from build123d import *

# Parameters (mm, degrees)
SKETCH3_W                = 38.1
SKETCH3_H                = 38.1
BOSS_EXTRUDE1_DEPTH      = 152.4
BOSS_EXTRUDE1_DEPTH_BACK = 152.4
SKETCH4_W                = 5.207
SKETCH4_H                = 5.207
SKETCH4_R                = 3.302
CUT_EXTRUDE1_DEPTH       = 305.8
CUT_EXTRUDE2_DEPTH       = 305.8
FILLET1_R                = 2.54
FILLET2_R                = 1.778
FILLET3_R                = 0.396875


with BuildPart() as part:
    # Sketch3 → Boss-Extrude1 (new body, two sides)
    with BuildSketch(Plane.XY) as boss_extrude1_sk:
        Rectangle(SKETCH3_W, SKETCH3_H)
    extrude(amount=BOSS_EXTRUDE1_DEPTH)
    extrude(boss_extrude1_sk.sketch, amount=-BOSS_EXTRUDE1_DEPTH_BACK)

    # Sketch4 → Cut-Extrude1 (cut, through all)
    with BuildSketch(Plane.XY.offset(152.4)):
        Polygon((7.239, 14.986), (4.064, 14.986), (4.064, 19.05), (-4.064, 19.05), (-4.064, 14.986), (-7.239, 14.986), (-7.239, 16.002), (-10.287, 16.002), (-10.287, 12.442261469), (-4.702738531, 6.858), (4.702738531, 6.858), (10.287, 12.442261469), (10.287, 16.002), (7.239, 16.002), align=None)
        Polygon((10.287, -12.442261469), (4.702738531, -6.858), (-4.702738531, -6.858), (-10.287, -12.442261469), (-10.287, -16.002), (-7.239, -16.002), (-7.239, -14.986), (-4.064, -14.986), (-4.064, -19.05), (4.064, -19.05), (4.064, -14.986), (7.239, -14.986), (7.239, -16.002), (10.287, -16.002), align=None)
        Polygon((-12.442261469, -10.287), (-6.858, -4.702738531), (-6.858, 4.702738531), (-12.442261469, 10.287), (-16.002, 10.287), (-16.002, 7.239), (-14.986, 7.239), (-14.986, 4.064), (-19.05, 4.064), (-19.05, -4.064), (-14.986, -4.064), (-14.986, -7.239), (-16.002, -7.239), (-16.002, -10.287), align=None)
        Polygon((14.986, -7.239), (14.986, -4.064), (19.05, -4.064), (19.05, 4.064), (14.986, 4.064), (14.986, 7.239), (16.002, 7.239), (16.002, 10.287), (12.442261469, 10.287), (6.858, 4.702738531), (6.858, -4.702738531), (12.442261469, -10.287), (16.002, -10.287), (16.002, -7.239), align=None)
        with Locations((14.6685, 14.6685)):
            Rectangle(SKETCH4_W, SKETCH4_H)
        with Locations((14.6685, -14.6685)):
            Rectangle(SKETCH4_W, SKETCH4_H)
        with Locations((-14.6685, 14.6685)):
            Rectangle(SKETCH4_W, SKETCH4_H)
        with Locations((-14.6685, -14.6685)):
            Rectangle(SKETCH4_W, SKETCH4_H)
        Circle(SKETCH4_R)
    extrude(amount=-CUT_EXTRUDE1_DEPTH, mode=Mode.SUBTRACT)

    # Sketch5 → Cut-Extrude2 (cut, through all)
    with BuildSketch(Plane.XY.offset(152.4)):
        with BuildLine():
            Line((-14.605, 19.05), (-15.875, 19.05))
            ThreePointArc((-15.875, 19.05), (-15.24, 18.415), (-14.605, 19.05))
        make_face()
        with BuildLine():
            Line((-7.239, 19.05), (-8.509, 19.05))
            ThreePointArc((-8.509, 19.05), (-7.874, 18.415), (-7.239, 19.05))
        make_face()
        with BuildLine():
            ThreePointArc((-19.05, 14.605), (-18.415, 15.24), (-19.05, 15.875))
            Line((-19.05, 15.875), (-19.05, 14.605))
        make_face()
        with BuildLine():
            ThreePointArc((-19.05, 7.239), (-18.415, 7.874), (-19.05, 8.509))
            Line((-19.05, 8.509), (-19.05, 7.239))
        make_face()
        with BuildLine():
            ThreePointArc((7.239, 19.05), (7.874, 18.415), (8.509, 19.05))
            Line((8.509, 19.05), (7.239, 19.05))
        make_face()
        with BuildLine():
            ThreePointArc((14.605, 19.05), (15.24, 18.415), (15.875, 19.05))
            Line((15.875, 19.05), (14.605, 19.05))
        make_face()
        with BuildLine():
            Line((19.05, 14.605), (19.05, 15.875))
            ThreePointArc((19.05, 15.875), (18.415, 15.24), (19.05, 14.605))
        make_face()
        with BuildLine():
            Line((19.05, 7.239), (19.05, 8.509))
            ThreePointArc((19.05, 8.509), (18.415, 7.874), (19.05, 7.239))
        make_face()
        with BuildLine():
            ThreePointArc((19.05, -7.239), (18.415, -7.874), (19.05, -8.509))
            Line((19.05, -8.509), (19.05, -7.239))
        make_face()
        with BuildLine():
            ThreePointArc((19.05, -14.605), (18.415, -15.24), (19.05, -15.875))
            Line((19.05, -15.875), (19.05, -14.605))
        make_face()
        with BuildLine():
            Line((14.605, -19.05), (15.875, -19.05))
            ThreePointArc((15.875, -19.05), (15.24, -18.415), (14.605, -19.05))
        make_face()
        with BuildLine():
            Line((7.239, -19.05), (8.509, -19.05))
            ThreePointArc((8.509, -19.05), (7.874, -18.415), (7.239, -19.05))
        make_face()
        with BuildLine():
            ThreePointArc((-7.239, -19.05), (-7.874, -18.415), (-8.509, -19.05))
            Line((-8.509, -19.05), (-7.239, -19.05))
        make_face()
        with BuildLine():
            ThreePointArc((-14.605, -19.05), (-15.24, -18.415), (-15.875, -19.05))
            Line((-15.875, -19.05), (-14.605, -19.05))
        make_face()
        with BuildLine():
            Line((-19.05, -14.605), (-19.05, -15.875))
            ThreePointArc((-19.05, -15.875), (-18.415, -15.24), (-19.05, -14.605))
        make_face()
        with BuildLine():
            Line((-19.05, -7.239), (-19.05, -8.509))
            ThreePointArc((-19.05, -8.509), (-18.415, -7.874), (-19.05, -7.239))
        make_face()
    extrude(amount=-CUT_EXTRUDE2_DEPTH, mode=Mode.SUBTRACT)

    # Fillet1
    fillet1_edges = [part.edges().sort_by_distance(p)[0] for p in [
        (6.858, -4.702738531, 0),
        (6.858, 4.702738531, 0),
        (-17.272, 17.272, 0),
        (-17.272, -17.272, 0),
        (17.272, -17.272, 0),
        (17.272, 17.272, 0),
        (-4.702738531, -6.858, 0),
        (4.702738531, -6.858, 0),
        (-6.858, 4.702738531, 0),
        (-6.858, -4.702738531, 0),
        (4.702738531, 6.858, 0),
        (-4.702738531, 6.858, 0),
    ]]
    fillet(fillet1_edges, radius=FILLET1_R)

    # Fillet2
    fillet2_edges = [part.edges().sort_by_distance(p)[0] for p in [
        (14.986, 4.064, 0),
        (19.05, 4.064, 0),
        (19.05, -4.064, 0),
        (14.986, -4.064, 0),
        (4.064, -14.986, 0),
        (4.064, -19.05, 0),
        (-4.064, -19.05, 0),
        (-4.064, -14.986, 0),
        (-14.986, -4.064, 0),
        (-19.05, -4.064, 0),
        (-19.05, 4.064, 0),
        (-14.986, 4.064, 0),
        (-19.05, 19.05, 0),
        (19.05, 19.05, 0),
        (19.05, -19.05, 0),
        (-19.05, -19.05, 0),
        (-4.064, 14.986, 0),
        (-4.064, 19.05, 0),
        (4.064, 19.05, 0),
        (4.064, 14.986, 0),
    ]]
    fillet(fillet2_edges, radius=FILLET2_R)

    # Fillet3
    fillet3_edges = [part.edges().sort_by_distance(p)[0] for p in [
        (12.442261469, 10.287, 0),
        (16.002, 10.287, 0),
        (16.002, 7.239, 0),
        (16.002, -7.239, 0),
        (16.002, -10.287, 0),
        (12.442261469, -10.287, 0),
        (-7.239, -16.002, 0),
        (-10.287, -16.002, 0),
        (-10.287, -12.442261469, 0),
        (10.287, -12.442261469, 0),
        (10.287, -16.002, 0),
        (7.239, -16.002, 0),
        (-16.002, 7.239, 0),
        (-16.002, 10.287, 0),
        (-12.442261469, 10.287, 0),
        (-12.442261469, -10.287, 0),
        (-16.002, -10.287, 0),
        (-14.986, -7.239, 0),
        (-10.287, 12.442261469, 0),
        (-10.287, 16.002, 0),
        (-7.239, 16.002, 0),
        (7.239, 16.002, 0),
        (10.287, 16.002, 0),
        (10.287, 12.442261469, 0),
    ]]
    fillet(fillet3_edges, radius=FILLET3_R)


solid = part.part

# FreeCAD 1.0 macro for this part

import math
import FreeCAD as App
import Part
import Sketcher

V = App.Vector
Q = App.Units.Quantity


def edges_at(feature, points):
    """Names of the edges that pass closest to the given points."""
    edges = feature.Shape.Edges
    near = lambda p: min(range(len(edges)), key=lambda i: edges[i].distToShape(Part.Vertex(*p))[0])
    return sorted({f"Edge{near(p) + 1}" for p in points})

doc = App.newDocument("Part")
body = doc.addObject("PartDesign::Body", "Body")

# Sketch on XY plane
sketch1 = body.newObject("Sketcher::SketchObject", "Sketch")
sketch1.AttachmentSupport = (doc.getObject("XY_Plane"), [""])
sketch1.MapMode = "FlatFace"
sketch1.addGeometry(Part.LineSegment(V(-19, 19, 0), V(-19, -19, 0)), False)
sketch1.addGeometry(Part.LineSegment(V(-19, -19, 0), V(19, -19, 0)), False)
sketch1.addGeometry(Part.LineSegment(V(19, -19, 0), V(19, 19, 0)), False)
sketch1.addGeometry(Part.LineSegment(V(19, 19, 0), V(-19, 19, 0)), False)
sketch1.addConstraint(Sketcher.Constraint("Coincident", 0, 2, 1, 1))
sketch1.addConstraint(Sketcher.Constraint("Coincident", 1, 2, 2, 1))
sketch1.addConstraint(Sketcher.Constraint("Coincident", 2, 2, 3, 1))
sketch1.addConstraint(Sketcher.Constraint("Coincident", 3, 2, 0, 1))
sketch1.addConstraint(Sketcher.Constraint("Vertical", 0))
sketch1.addConstraint(Sketcher.Constraint("Horizontal", 1))
sketch1.addConstraint(Sketcher.Constraint("Vertical", 2))
sketch1.addConstraint(Sketcher.Constraint("Horizontal", 3))
sketch1.addConstraint(Sketcher.Constraint("Symmetric", 0, 2, 2, 2, -1, 1))
sketch1.addConstraint(Sketcher.Constraint("Equal", 3, 0))
sketch1.addConstraint(Sketcher.Constraint("DistanceX", 1, 1, 1, 2, Q("1.5 in")))
pad1 = body.newObject("PartDesign::Pad", "Pad")
pad1.Profile = sketch1
pad1.Type = "TwoLengths"
pad1.Length = Q("6 in")
pad1.Length2 = Q("6 in")

# Sketch on XY plane
sketch2 = body.newObject("Sketcher::SketchObject", "Sketch001")
sketch2.AttachmentSupport = (doc.getObject("XY_Plane"), [""])
sketch2.MapMode = "FlatFace"
sketch2.AttachmentOffset = App.Placement(V(0, 0, 6 * 25.4), App.Rotation())
sketch2.addGeometry(Part.LineSegment(V(7.2, 15, 0), V(4.1, 15, 0)), False)
sketch2.addGeometry(Part.LineSegment(V(4.1, 15, 0), V(4.1, 19.1, 0)), False)
sketch2.addGeometry(Part.LineSegment(V(4.1, 19.1, 0), V(-4.1, 19.1, 0)), False)
sketch2.addGeometry(Part.LineSegment(V(-4.1, 19.1, 0), V(-4.1, 15, 0)), False)
sketch2.addGeometry(Part.LineSegment(V(-4.1, 15, 0), V(-7.2, 15, 0)), False)
sketch2.addGeometry(Part.LineSegment(V(-7.2, 15, 0), V(-7.2, 16, 0)), False)
sketch2.addGeometry(Part.LineSegment(V(-7.2, 16, 0), V(-10.3, 16, 0)), False)
sketch2.addGeometry(Part.LineSegment(V(-10.3, 16, 0), V(-10.3, 12.4, 0)), False)
sketch2.addGeometry(Part.LineSegment(V(-10.3, 12.4, 0), V(-4.7, 6.9, 0)), False)
sketch2.addGeometry(Part.LineSegment(V(-4.7, 6.9, 0), V(4.7, 6.9, 0)), False)
sketch2.addGeometry(Part.LineSegment(V(4.7, 6.9, 0), V(10.3, 12.4, 0)), False)
sketch2.addGeometry(Part.LineSegment(V(10.3, 12.4, 0), V(10.3, 16, 0)), False)
sketch2.addGeometry(Part.LineSegment(V(10.3, 16, 0), V(7.2, 16, 0)), False)
sketch2.addGeometry(Part.LineSegment(V(7.2, 16, 0), V(7.2, 15, 0)), False)
sketch2.addGeometry(Part.LineSegment(V(10.3, -12.4, 0), V(4.7, -6.9, 0)), False)
sketch2.addGeometry(Part.LineSegment(V(4.7, -6.9, 0), V(-4.7, -6.9, 0)), False)
sketch2.addGeometry(Part.LineSegment(V(-4.7, -6.9, 0), V(-10.3, -12.4, 0)), False)
sketch2.addGeometry(Part.LineSegment(V(-10.3, -12.4, 0), V(-10.3, -16, 0)), False)
sketch2.addGeometry(Part.LineSegment(V(-10.3, -16, 0), V(-7.2, -16, 0)), False)
sketch2.addGeometry(Part.LineSegment(V(-7.2, -16, 0), V(-7.2, -15, 0)), False)
sketch2.addGeometry(Part.LineSegment(V(-7.2, -15, 0), V(-4.1, -15, 0)), False)
sketch2.addGeometry(Part.LineSegment(V(-4.1, -15, 0), V(-4.1, -19.1, 0)), False)
sketch2.addGeometry(Part.LineSegment(V(-4.1, -19.1, 0), V(4.1, -19.1, 0)), False)
sketch2.addGeometry(Part.LineSegment(V(4.1, -19.1, 0), V(4.1, -15, 0)), False)
sketch2.addGeometry(Part.LineSegment(V(4.1, -15, 0), V(7.2, -15, 0)), False)
sketch2.addGeometry(Part.LineSegment(V(7.2, -15, 0), V(7.2, -16, 0)), False)
sketch2.addGeometry(Part.LineSegment(V(7.2, -16, 0), V(10.3, -16, 0)), False)
sketch2.addGeometry(Part.LineSegment(V(10.3, -16, 0), V(10.3, -12.4, 0)), False)
sketch2.addGeometry(Part.LineSegment(V(-12.4, -10.3, 0), V(-6.9, -4.7, 0)), False)
sketch2.addGeometry(Part.LineSegment(V(-6.9, -4.7, 0), V(-6.9, 4.7, 0)), False)
sketch2.addGeometry(Part.LineSegment(V(-6.9, 4.7, 0), V(-12.4, 10.3, 0)), False)
sketch2.addGeometry(Part.LineSegment(V(-12.4, 10.3, 0), V(-16, 10.3, 0)), False)
sketch2.addGeometry(Part.LineSegment(V(-16, 10.3, 0), V(-16, 7.2, 0)), False)
sketch2.addGeometry(Part.LineSegment(V(-16, 7.2, 0), V(-15, 7.2, 0)), False)
sketch2.addGeometry(Part.LineSegment(V(-15, 7.2, 0), V(-15, 4.1, 0)), False)
sketch2.addGeometry(Part.LineSegment(V(-15, 4.1, 0), V(-19.1, 4.1, 0)), False)
sketch2.addGeometry(Part.LineSegment(V(-19.1, 4.1, 0), V(-19.1, -4.1, 0)), False)
sketch2.addGeometry(Part.LineSegment(V(-19.1, -4.1, 0), V(-15, -4.1, 0)), False)
sketch2.addGeometry(Part.LineSegment(V(-15, -4.1, 0), V(-15, -7.2, 0)), False)
sketch2.addGeometry(Part.LineSegment(V(-15, -7.2, 0), V(-16, -7.2, 0)), False)
sketch2.addGeometry(Part.LineSegment(V(-16, -7.2, 0), V(-16, -10.3, 0)), False)
sketch2.addGeometry(Part.LineSegment(V(-16, -10.3, 0), V(-12.4, -10.3, 0)), False)
sketch2.addGeometry(Part.LineSegment(V(15, -7.2, 0), V(15, -4.1, 0)), False)
sketch2.addGeometry(Part.LineSegment(V(15, -4.1, 0), V(19.1, -4.1, 0)), False)
sketch2.addGeometry(Part.LineSegment(V(19.1, -4.1, 0), V(19.1, 4.1, 0)), False)
sketch2.addGeometry(Part.LineSegment(V(19.1, 4.1, 0), V(15, 4.1, 0)), False)
sketch2.addGeometry(Part.LineSegment(V(15, 4.1, 0), V(15, 7.2, 0)), False)
sketch2.addGeometry(Part.LineSegment(V(15, 7.2, 0), V(16, 7.2, 0)), False)
sketch2.addGeometry(Part.LineSegment(V(16, 7.2, 0), V(16, 10.3, 0)), False)
sketch2.addGeometry(Part.LineSegment(V(16, 10.3, 0), V(12.4, 10.3, 0)), False)
sketch2.addGeometry(Part.LineSegment(V(12.4, 10.3, 0), V(6.9, 4.7, 0)), False)
sketch2.addGeometry(Part.LineSegment(V(6.9, 4.7, 0), V(6.9, -4.7, 0)), False)
sketch2.addGeometry(Part.LineSegment(V(6.9, -4.7, 0), V(12.4, -10.3, 0)), False)
sketch2.addGeometry(Part.LineSegment(V(12.4, -10.3, 0), V(16, -10.3, 0)), False)
sketch2.addGeometry(Part.LineSegment(V(16, -10.3, 0), V(16, -7.2, 0)), False)
sketch2.addGeometry(Part.LineSegment(V(16, -7.2, 0), V(15, -7.2, 0)), False)
sketch2.addGeometry(Part.LineSegment(V(12.1, 17.3, 0), V(12.1, 12.1, 0)), False)
sketch2.addGeometry(Part.LineSegment(V(12.1, 12.1, 0), V(17.3, 12.1, 0)), False)
sketch2.addGeometry(Part.LineSegment(V(17.3, 12.1, 0), V(17.3, 17.3, 0)), False)
sketch2.addGeometry(Part.LineSegment(V(17.3, 17.3, 0), V(12.1, 17.3, 0)), False)
sketch2.addGeometry(Part.LineSegment(V(12.1, -12.1, 0), V(12.1, -17.3, 0)), False)
sketch2.addGeometry(Part.LineSegment(V(12.1, -17.3, 0), V(17.3, -17.3, 0)), False)
sketch2.addGeometry(Part.LineSegment(V(17.3, -17.3, 0), V(17.3, -12.1, 0)), False)
sketch2.addGeometry(Part.LineSegment(V(17.3, -12.1, 0), V(12.1, -12.1, 0)), False)
sketch2.addGeometry(Part.LineSegment(V(-17.3, 17.3, 0), V(-17.3, 12.1, 0)), False)
sketch2.addGeometry(Part.LineSegment(V(-17.3, 12.1, 0), V(-12.1, 12.1, 0)), False)
sketch2.addGeometry(Part.LineSegment(V(-12.1, 12.1, 0), V(-12.1, 17.3, 0)), False)
sketch2.addGeometry(Part.LineSegment(V(-12.1, 17.3, 0), V(-17.3, 17.3, 0)), False)
sketch2.addGeometry(Part.LineSegment(V(-17.3, -12.1, 0), V(-17.3, -17.3, 0)), False)
sketch2.addGeometry(Part.LineSegment(V(-17.3, -17.3, 0), V(-12.1, -17.3, 0)), False)
sketch2.addGeometry(Part.LineSegment(V(-12.1, -17.3, 0), V(-12.1, -12.1, 0)), False)
sketch2.addGeometry(Part.LineSegment(V(-12.1, -12.1, 0), V(-17.3, -12.1, 0)), False)
sketch2.addGeometry(Part.Circle(V(0, 0, 0), V(0, 0, 1), 3.3), False)
sketch2.addConstraint(Sketcher.Constraint("Coincident", 0, 2, 1, 1))
sketch2.addConstraint(Sketcher.Constraint("Coincident", 1, 2, 2, 1))
sketch2.addConstraint(Sketcher.Constraint("Coincident", 2, 2, 3, 1))
sketch2.addConstraint(Sketcher.Constraint("Coincident", 3, 2, 4, 1))
sketch2.addConstraint(Sketcher.Constraint("Coincident", 4, 2, 5, 1))
sketch2.addConstraint(Sketcher.Constraint("Coincident", 5, 2, 6, 1))
sketch2.addConstraint(Sketcher.Constraint("Coincident", 6, 2, 7, 1))
sketch2.addConstraint(Sketcher.Constraint("Coincident", 7, 2, 8, 1))
sketch2.addConstraint(Sketcher.Constraint("Coincident", 8, 2, 9, 1))
sketch2.addConstraint(Sketcher.Constraint("Coincident", 9, 2, 10, 1))
sketch2.addConstraint(Sketcher.Constraint("Coincident", 10, 2, 11, 1))
sketch2.addConstraint(Sketcher.Constraint("Coincident", 11, 2, 12, 1))
sketch2.addConstraint(Sketcher.Constraint("Coincident", 12, 2, 13, 1))
sketch2.addConstraint(Sketcher.Constraint("Coincident", 13, 2, 0, 1))
sketch2.addConstraint(Sketcher.Constraint("Coincident", 14, 2, 15, 1))
sketch2.addConstraint(Sketcher.Constraint("Coincident", 15, 2, 16, 1))
sketch2.addConstraint(Sketcher.Constraint("Coincident", 16, 2, 17, 1))
sketch2.addConstraint(Sketcher.Constraint("Coincident", 17, 2, 18, 1))
sketch2.addConstraint(Sketcher.Constraint("Coincident", 18, 2, 19, 1))
sketch2.addConstraint(Sketcher.Constraint("Coincident", 19, 2, 20, 1))
sketch2.addConstraint(Sketcher.Constraint("Coincident", 20, 2, 21, 1))
sketch2.addConstraint(Sketcher.Constraint("Coincident", 21, 2, 22, 1))
sketch2.addConstraint(Sketcher.Constraint("Coincident", 22, 2, 23, 1))
sketch2.addConstraint(Sketcher.Constraint("Coincident", 23, 2, 24, 1))
sketch2.addConstraint(Sketcher.Constraint("Coincident", 24, 2, 25, 1))
sketch2.addConstraint(Sketcher.Constraint("Coincident", 25, 2, 26, 1))
sketch2.addConstraint(Sketcher.Constraint("Coincident", 26, 2, 27, 1))
sketch2.addConstraint(Sketcher.Constraint("Coincident", 27, 2, 14, 1))
sketch2.addConstraint(Sketcher.Constraint("Coincident", 28, 2, 29, 1))
sketch2.addConstraint(Sketcher.Constraint("Coincident", 29, 2, 30, 1))
sketch2.addConstraint(Sketcher.Constraint("Coincident", 30, 2, 31, 1))
sketch2.addConstraint(Sketcher.Constraint("Coincident", 31, 2, 32, 1))
sketch2.addConstraint(Sketcher.Constraint("Coincident", 32, 2, 33, 1))
sketch2.addConstraint(Sketcher.Constraint("Coincident", 33, 2, 34, 1))
sketch2.addConstraint(Sketcher.Constraint("Coincident", 34, 2, 35, 1))
sketch2.addConstraint(Sketcher.Constraint("Coincident", 35, 2, 36, 1))
sketch2.addConstraint(Sketcher.Constraint("Coincident", 36, 2, 37, 1))
sketch2.addConstraint(Sketcher.Constraint("Coincident", 37, 2, 38, 1))
sketch2.addConstraint(Sketcher.Constraint("Coincident", 38, 2, 39, 1))
sketch2.addConstraint(Sketcher.Constraint("Coincident", 39, 2, 40, 1))
sketch2.addConstraint(Sketcher.Constraint("Coincident", 40, 2, 41, 1))
sketch2.addConstraint(Sketcher.Constraint("Coincident", 41, 2, 28, 1))
sketch2.addConstraint(Sketcher.Constraint("Coincident", 42, 2, 43, 1))
sketch2.addConstraint(Sketcher.Constraint("Coincident", 43, 2, 44, 1))
sketch2.addConstraint(Sketcher.Constraint("Coincident", 44, 2, 45, 1))
sketch2.addConstraint(Sketcher.Constraint("Coincident", 45, 2, 46, 1))
sketch2.addConstraint(Sketcher.Constraint("Coincident", 46, 2, 47, 1))
sketch2.addConstraint(Sketcher.Constraint("Coincident", 47, 2, 48, 1))
sketch2.addConstraint(Sketcher.Constraint("Coincident", 48, 2, 49, 1))
sketch2.addConstraint(Sketcher.Constraint("Coincident", 49, 2, 50, 1))
sketch2.addConstraint(Sketcher.Constraint("Coincident", 50, 2, 51, 1))
sketch2.addConstraint(Sketcher.Constraint("Coincident", 51, 2, 52, 1))
sketch2.addConstraint(Sketcher.Constraint("Coincident", 52, 2, 53, 1))
sketch2.addConstraint(Sketcher.Constraint("Coincident", 53, 2, 54, 1))
sketch2.addConstraint(Sketcher.Constraint("Coincident", 54, 2, 55, 1))
sketch2.addConstraint(Sketcher.Constraint("Coincident", 55, 2, 42, 1))
sketch2.addConstraint(Sketcher.Constraint("Coincident", 56, 2, 57, 1))
sketch2.addConstraint(Sketcher.Constraint("Coincident", 57, 2, 58, 1))
sketch2.addConstraint(Sketcher.Constraint("Coincident", 58, 2, 59, 1))
sketch2.addConstraint(Sketcher.Constraint("Coincident", 59, 2, 56, 1))
sketch2.addConstraint(Sketcher.Constraint("Coincident", 60, 2, 61, 1))
sketch2.addConstraint(Sketcher.Constraint("Coincident", 61, 2, 62, 1))
sketch2.addConstraint(Sketcher.Constraint("Coincident", 62, 2, 63, 1))
sketch2.addConstraint(Sketcher.Constraint("Coincident", 63, 2, 60, 1))
sketch2.addConstraint(Sketcher.Constraint("Coincident", 64, 2, 65, 1))
sketch2.addConstraint(Sketcher.Constraint("Coincident", 65, 2, 66, 1))
sketch2.addConstraint(Sketcher.Constraint("Coincident", 66, 2, 67, 1))
sketch2.addConstraint(Sketcher.Constraint("Coincident", 67, 2, 64, 1))
sketch2.addConstraint(Sketcher.Constraint("Coincident", 68, 2, 69, 1))
sketch2.addConstraint(Sketcher.Constraint("Coincident", 69, 2, 70, 1))
sketch2.addConstraint(Sketcher.Constraint("Coincident", 70, 2, 71, 1))
sketch2.addConstraint(Sketcher.Constraint("Coincident", 71, 2, 68, 1))
sketch2.addConstraint(Sketcher.Constraint("Horizontal", 0))
sketch2.addConstraint(Sketcher.Constraint("Vertical", 1))
sketch2.addConstraint(Sketcher.Constraint("Horizontal", 2))
sketch2.addConstraint(Sketcher.Constraint("Vertical", 3))
sketch2.addConstraint(Sketcher.Constraint("Horizontal", 4))
sketch2.addConstraint(Sketcher.Constraint("Vertical", 5))
sketch2.addConstraint(Sketcher.Constraint("Horizontal", 6))
sketch2.addConstraint(Sketcher.Constraint("Vertical", 7))
sketch2.addConstraint(Sketcher.Constraint("Horizontal", 9))
sketch2.addConstraint(Sketcher.Constraint("Vertical", 11))
sketch2.addConstraint(Sketcher.Constraint("Horizontal", 12))
sketch2.addConstraint(Sketcher.Constraint("Vertical", 13))
sketch2.addConstraint(Sketcher.Constraint("Horizontal", 15))
sketch2.addConstraint(Sketcher.Constraint("Vertical", 17))
sketch2.addConstraint(Sketcher.Constraint("Horizontal", 18))
sketch2.addConstraint(Sketcher.Constraint("Vertical", 19))
sketch2.addConstraint(Sketcher.Constraint("Horizontal", 20))
sketch2.addConstraint(Sketcher.Constraint("Vertical", 21))
sketch2.addConstraint(Sketcher.Constraint("Horizontal", 22))
sketch2.addConstraint(Sketcher.Constraint("Vertical", 23))
sketch2.addConstraint(Sketcher.Constraint("Horizontal", 24))
sketch2.addConstraint(Sketcher.Constraint("Vertical", 25))
sketch2.addConstraint(Sketcher.Constraint("Horizontal", 26))
sketch2.addConstraint(Sketcher.Constraint("Vertical", 27))
sketch2.addConstraint(Sketcher.Constraint("Vertical", 29))
sketch2.addConstraint(Sketcher.Constraint("Horizontal", 31))
sketch2.addConstraint(Sketcher.Constraint("Vertical", 32))
sketch2.addConstraint(Sketcher.Constraint("Horizontal", 33))
sketch2.addConstraint(Sketcher.Constraint("Vertical", 34))
sketch2.addConstraint(Sketcher.Constraint("Horizontal", 35))
sketch2.addConstraint(Sketcher.Constraint("Vertical", 36))
sketch2.addConstraint(Sketcher.Constraint("Horizontal", 37))
sketch2.addConstraint(Sketcher.Constraint("Vertical", 38))
sketch2.addConstraint(Sketcher.Constraint("Horizontal", 39))
sketch2.addConstraint(Sketcher.Constraint("Vertical", 40))
sketch2.addConstraint(Sketcher.Constraint("Horizontal", 41))
sketch2.addConstraint(Sketcher.Constraint("Vertical", 42))
sketch2.addConstraint(Sketcher.Constraint("Horizontal", 43))
sketch2.addConstraint(Sketcher.Constraint("Vertical", 44))
sketch2.addConstraint(Sketcher.Constraint("Horizontal", 45))
sketch2.addConstraint(Sketcher.Constraint("Vertical", 46))
sketch2.addConstraint(Sketcher.Constraint("Horizontal", 47))
sketch2.addConstraint(Sketcher.Constraint("Vertical", 48))
sketch2.addConstraint(Sketcher.Constraint("Horizontal", 49))
sketch2.addConstraint(Sketcher.Constraint("Vertical", 51))
sketch2.addConstraint(Sketcher.Constraint("Horizontal", 53))
sketch2.addConstraint(Sketcher.Constraint("Vertical", 54))
sketch2.addConstraint(Sketcher.Constraint("Horizontal", 55))
sketch2.addConstraint(Sketcher.Constraint("Vertical", 56))
sketch2.addConstraint(Sketcher.Constraint("Horizontal", 57))
sketch2.addConstraint(Sketcher.Constraint("Vertical", 58))
sketch2.addConstraint(Sketcher.Constraint("Horizontal", 59))
sketch2.addConstraint(Sketcher.Constraint("Vertical", 60))
sketch2.addConstraint(Sketcher.Constraint("Horizontal", 61))
sketch2.addConstraint(Sketcher.Constraint("Vertical", 62))
sketch2.addConstraint(Sketcher.Constraint("Horizontal", 63))
sketch2.addConstraint(Sketcher.Constraint("Vertical", 64))
sketch2.addConstraint(Sketcher.Constraint("Horizontal", 65))
sketch2.addConstraint(Sketcher.Constraint("Vertical", 66))
sketch2.addConstraint(Sketcher.Constraint("Horizontal", 67))
sketch2.addConstraint(Sketcher.Constraint("Vertical", 68))
sketch2.addConstraint(Sketcher.Constraint("Horizontal", 69))
sketch2.addConstraint(Sketcher.Constraint("Vertical", 70))
sketch2.addConstraint(Sketcher.Constraint("Horizontal", 71))
sketch2.addConstraint(Sketcher.Constraint("Coincident", 72, 3, -1, 1))
sketch2.addConstraint(Sketcher.Constraint("Symmetric", 8, 2, 14, 2, -1, 1))
sketch2.addConstraint(Sketcher.Constraint("Symmetric", 10, 2, 16, 2, -1, 1))
sketch2.addConstraint(Sketcher.Constraint("Symmetric", 12, 2, 18, 2, -1, 1))
sketch2.addConstraint(Sketcher.Constraint("Symmetric", 0, 2, 20, 2, -1, 1))
sketch2.addConstraint(Sketcher.Constraint("Symmetric", 2, 2, 22, 2, -1, 1))
sketch2.addConstraint(Sketcher.Constraint("Symmetric", 4, 2, 24, 2, -1, 1))
sketch2.addConstraint(Sketcher.Constraint("Symmetric", 6, 2, 26, 2, -1, 1))
sketch2.addConstraint(Sketcher.Constraint("Symmetric", 34, 2, 42, 2, -1, 1))
sketch2.addConstraint(Sketcher.Constraint("Symmetric", 36, 2, 44, 2, -1, 1))
sketch2.addConstraint(Sketcher.Constraint("Symmetric", 38, 2, 46, 2, -1, 1))
sketch2.addConstraint(Sketcher.Constraint("Symmetric", 40, 2, 48, 2, -1, 1))
sketch2.addConstraint(Sketcher.Constraint("Symmetric", 28, 2, 50, 2, -1, 1))
sketch2.addConstraint(Sketcher.Constraint("Symmetric", 30, 2, 52, 2, -1, 1))
sketch2.addConstraint(Sketcher.Constraint("Symmetric", 32, 2, 54, 2, -1, 1))
sketch2.addConstraint(Sketcher.Constraint("Symmetric", 62, 2, 64, 2, -1, 1))
sketch2.addConstraint(Sketcher.Constraint("Symmetric", 60, 2, 66, 2, -1, 1))
sketch2.addConstraint(Sketcher.Constraint("Symmetric", 58, 2, 68, 2, -1, 1))
sketch2.addConstraint(Sketcher.Constraint("Symmetric", 56, 2, 70, 2, -1, 1))
sketch2.addConstraint(Sketcher.Constraint("Symmetric", 0, 2, 3, 2, -2))
sketch2.addConstraint(Sketcher.Constraint("Symmetric", 7, 2, 10, 2, -2))
sketch2.addConstraint(Sketcher.Constraint("Symmetric", 5, 2, 12, 2, -2))
sketch2.addConstraint(Sketcher.Constraint("Symmetric", 37, 2, 42, 2, -2))
sketch2.addConstraint(Sketcher.Constraint("Symmetric", 32, 2, 47, 2, -2))
sketch2.addConstraint(Sketcher.Constraint("Symmetric", 30, 2, 49, 2, -2))
sketch2.addConstraint(Sketcher.Constraint("Symmetric", 57, 2, 64, 2, -2))
sketch2.addConstraint(Sketcher.Constraint("Symmetric", 59, 2, 66, 2, -2))
sketch2.addConstraint(Sketcher.Constraint("Perpendicular", 8, 10))
sketch2.addConstraint(Sketcher.Constraint("Perpendicular", 10, 14))
sketch2.addConstraint(Sketcher.Constraint("Perpendicular", 14, 16))
sketch2.addConstraint(Sketcher.Constraint("Parallel", 16, 28))
sketch2.addConstraint(Sketcher.Constraint("Perpendicular", 28, 30))
sketch2.addConstraint(Sketcher.Constraint("Perpendicular", 30, 50))
sketch2.addConstraint(Sketcher.Constraint("Perpendicular", 50, 52))
sketch2.addConstraint(Sketcher.Constraint("Horizontal", 29, 2, 50, 2))
sketch2.addConstraint(Sketcher.Constraint("Equal", 45, 1))
sketch2.addConstraint(Sketcher.Constraint("Equal", 55, 5))
sketch2.addConstraint(Sketcher.Constraint("Equal", 53, 7))
sketch2.addConstraint(Sketcher.Constraint("Equal", 15, 29))
sketch2.addConstraint(Sketcher.Constraint("Equal", 26, 32))
sketch2.addConstraint(Sketcher.Constraint("Equal", 24, 34))
sketch2.addConstraint(Sketcher.Constraint("Equal", 22, 36))
sketch2.addConstraint(Sketcher.Constraint("Equal", 71, 56))
sketch2.addConstraint(Sketcher.Constraint("Diameter", 72, Q("0.26 in")))
sketch2.addConstraint(Sketcher.Constraint("DistanceX", 2, 2, 2, 1, Q("0.32 in")))
sketch2.addConstraint(Sketcher.Constraint("DistanceX", 6, 2, 6, 1, Q("0.12 in")))
sketch2.addConstraint(Sketcher.Constraint("DistanceX", 33, 1, 33, 2, Q("0.04 in")))
sketch2.addConstraint(Sketcher.Constraint("DistanceX", 35, 2, 35, 1, Q("0.16 in")))
sketch2.addConstraint(Sketcher.Constraint("DistanceX", 0, 2, 0, 1, Q("0.125 in")))
sketch2.addConstraint(Sketcher.Constraint("DistanceX", 57, 1, 57, 2, Q("0.205 in")))
sketch2.addConstraint(Sketcher.Constraint("DistanceY", -1, 1, 0, 2, Q("0.59 in")))
sketch2.addConstraint(Sketcher.Constraint("DistanceY", -1, 1, 8, 2, Q("0.27 in")))
sketch2.addConstraint(Sketcher.Constraint("DistanceX", 28, 2, -1, 1, Q("0.27 in")))
sketch2.addConstraint(Sketcher.Constraint("DistanceX", -1, 1, 57, 2, Q("0.68 in")))
sketch2.addConstraint(Sketcher.Constraint("DistanceY", -1, 1, 58, 2, Q("0.68 in")))
sketch2.addConstraint(Sketcher.Constraint("DistanceX", 31, 2, 31, 1, Q("3.559739 mm")))
pocket1 = body.newObject("PartDesign::Pocket", "Pocket")
pocket1.Profile = sketch2
pocket1.Type = "ThroughAll"

# Sketch on XY plane
sketch3 = body.newObject("Sketcher::SketchObject", "Sketch002")
sketch3.AttachmentSupport = (doc.getObject("XY_Plane"), [""])
sketch3.MapMode = "FlatFace"
sketch3.AttachmentOffset = App.Placement(V(0, 0, 6 * 25.4), App.Rotation())
sketch3.addGeometry(Part.LineSegment(V(-14.6, 19.1, 0), V(-15.9, 19.1, 0)), False)
sketch3.addGeometry(Part.ArcOfCircle(Part.Circle(V(-15.2, 19.1, 0), V(0, 0, 1), 0.6), math.radians(180), math.radians(360)), False)
sketch3.addGeometry(Part.LineSegment(V(-7.2, 19.1, 0), V(-8.5, 19.1, 0)), False)
sketch3.addGeometry(Part.ArcOfCircle(Part.Circle(V(-7.9, 19.1, 0), V(0, 0, 1), 0.6), math.radians(180), math.radians(360)), False)
sketch3.addGeometry(Part.ArcOfCircle(Part.Circle(V(-19.1, 15.2, 0), V(0, 0, 1), 0.6), math.radians(-90), math.radians(90)), False)
sketch3.addGeometry(Part.LineSegment(V(-19.1, 15.9, 0), V(-19.1, 14.6, 0)), False)
sketch3.addGeometry(Part.ArcOfCircle(Part.Circle(V(-19.1, 7.9, 0), V(0, 0, 1), 0.6), math.radians(-90), math.radians(90)), False)
sketch3.addGeometry(Part.LineSegment(V(-19.1, 8.5, 0), V(-19.1, 7.2, 0)), False)
sketch3.addGeometry(Part.ArcOfCircle(Part.Circle(V(7.9, 19.1, 0), V(0, 0, 1), 0.6), math.radians(180), math.radians(360)), False)
sketch3.addGeometry(Part.LineSegment(V(8.5, 19.1, 0), V(7.2, 19.1, 0)), False)
sketch3.addGeometry(Part.ArcOfCircle(Part.Circle(V(15.2, 19.1, 0), V(0, 0, 1), 0.6), math.radians(180), math.radians(360)), False)
sketch3.addGeometry(Part.LineSegment(V(15.9, 19.1, 0), V(14.6, 19.1, 0)), False)
sketch3.addGeometry(Part.LineSegment(V(19.1, 14.6, 0), V(19.1, 15.9, 0)), False)
sketch3.addGeometry(Part.ArcOfCircle(Part.Circle(V(19.1, 15.2, 0), V(0, 0, 1), 0.6), math.radians(90), math.radians(270)), False)
sketch3.addGeometry(Part.LineSegment(V(19.1, 7.2, 0), V(19.1, 8.5, 0)), False)
sketch3.addGeometry(Part.ArcOfCircle(Part.Circle(V(19.1, 7.9, 0), V(0, 0, 1), 0.6), math.radians(90), math.radians(270)), False)
sketch3.addGeometry(Part.ArcOfCircle(Part.Circle(V(19.1, -7.9, 0), V(0, 0, 1), 0.6), math.radians(90), math.radians(270)), False)
sketch3.addGeometry(Part.LineSegment(V(19.1, -8.5, 0), V(19.1, -7.2, 0)), False)
sketch3.addGeometry(Part.ArcOfCircle(Part.Circle(V(19.1, -15.2, 0), V(0, 0, 1), 0.6), math.radians(90), math.radians(270)), False)
sketch3.addGeometry(Part.LineSegment(V(19.1, -15.9, 0), V(19.1, -14.6, 0)), False)
sketch3.addGeometry(Part.LineSegment(V(14.6, -19.1, 0), V(15.9, -19.1, 0)), False)
sketch3.addGeometry(Part.ArcOfCircle(Part.Circle(V(15.2, -19.1, 0), V(0, 0, 1), 0.6), math.radians(0), math.radians(180)), False)
sketch3.addGeometry(Part.LineSegment(V(7.2, -19.1, 0), V(8.5, -19.1, 0)), False)
sketch3.addGeometry(Part.ArcOfCircle(Part.Circle(V(7.9, -19.1, 0), V(0, 0, 1), 0.6), math.radians(0), math.radians(180)), False)
sketch3.addGeometry(Part.ArcOfCircle(Part.Circle(V(-7.9, -19.1, 0), V(0, 0, 1), 0.6), math.radians(0), math.radians(180)), False)
sketch3.addGeometry(Part.LineSegment(V(-8.5, -19.1, 0), V(-7.2, -19.1, 0)), False)
sketch3.addGeometry(Part.ArcOfCircle(Part.Circle(V(-15.2, -19.1, 0), V(0, 0, 1), 0.6), math.radians(0), math.radians(180)), False)
sketch3.addGeometry(Part.LineSegment(V(-15.9, -19.1, 0), V(-14.6, -19.1, 0)), False)
sketch3.addGeometry(Part.LineSegment(V(-19.1, -14.6, 0), V(-19.1, -15.9, 0)), False)
sketch3.addGeometry(Part.ArcOfCircle(Part.Circle(V(-19.1, -15.2, 0), V(0, 0, 1), 0.6), math.radians(-90), math.radians(90)), False)
sketch3.addGeometry(Part.LineSegment(V(-19.1, -7.2, 0), V(-19.1, -8.5, 0)), False)
sketch3.addGeometry(Part.ArcOfCircle(Part.Circle(V(-19.1, -7.9, 0), V(0, 0, 1), 0.6), math.radians(-90), math.radians(90)), False)
sketch3.addConstraint(Sketcher.Constraint("Coincident", 0, 1, 1, 2))
sketch3.addConstraint(Sketcher.Constraint("Coincident", 1, 1, 0, 2))
sketch3.addConstraint(Sketcher.Constraint("Coincident", 2, 1, 3, 2))
sketch3.addConstraint(Sketcher.Constraint("Coincident", 3, 1, 2, 2))
sketch3.addConstraint(Sketcher.Constraint("Coincident", 4, 1, 5, 2))
sketch3.addConstraint(Sketcher.Constraint("Coincident", 5, 1, 4, 2))
sketch3.addConstraint(Sketcher.Constraint("Coincident", 6, 1, 7, 2))
sketch3.addConstraint(Sketcher.Constraint("Coincident", 7, 1, 6, 2))
sketch3.addConstraint(Sketcher.Constraint("Coincident", 8, 1, 9, 2))
sketch3.addConstraint(Sketcher.Constraint("Coincident", 9, 1, 8, 2))
sketch3.addConstraint(Sketcher.Constraint("Coincident", 10, 1, 11, 2))
sketch3.addConstraint(Sketcher.Constraint("Coincident", 11, 1, 10, 2))
sketch3.addConstraint(Sketcher.Constraint("Coincident", 12, 1, 13, 2))
sketch3.addConstraint(Sketcher.Constraint("Coincident", 13, 1, 12, 2))
sketch3.addConstraint(Sketcher.Constraint("Coincident", 14, 1, 15, 2))
sketch3.addConstraint(Sketcher.Constraint("Coincident", 15, 1, 14, 2))
sketch3.addConstraint(Sketcher.Constraint("Coincident", 16, 1, 17, 2))
sketch3.addConstraint(Sketcher.Constraint("Coincident", 17, 1, 16, 2))
sketch3.addConstraint(Sketcher.Constraint("Coincident", 18, 1, 19, 2))
sketch3.addConstraint(Sketcher.Constraint("Coincident", 19, 1, 18, 2))
sketch3.addConstraint(Sketcher.Constraint("Coincident", 20, 1, 21, 2))
sketch3.addConstraint(Sketcher.Constraint("Coincident", 21, 1, 20, 2))
sketch3.addConstraint(Sketcher.Constraint("Coincident", 22, 1, 23, 2))
sketch3.addConstraint(Sketcher.Constraint("Coincident", 23, 1, 22, 2))
sketch3.addConstraint(Sketcher.Constraint("Coincident", 24, 1, 25, 2))
sketch3.addConstraint(Sketcher.Constraint("Coincident", 25, 1, 24, 2))
sketch3.addConstraint(Sketcher.Constraint("Coincident", 26, 1, 27, 2))
sketch3.addConstraint(Sketcher.Constraint("Coincident", 27, 1, 26, 2))
sketch3.addConstraint(Sketcher.Constraint("Coincident", 28, 1, 29, 2))
sketch3.addConstraint(Sketcher.Constraint("Coincident", 29, 1, 28, 2))
sketch3.addConstraint(Sketcher.Constraint("Coincident", 30, 1, 31, 2))
sketch3.addConstraint(Sketcher.Constraint("Coincident", 31, 1, 30, 2))
sketch3.addConstraint(Sketcher.Constraint("Horizontal", 0))
sketch3.addConstraint(Sketcher.Constraint("Horizontal", 2))
sketch3.addConstraint(Sketcher.Constraint("Vertical", 5))
sketch3.addConstraint(Sketcher.Constraint("Vertical", 7))
sketch3.addConstraint(Sketcher.Constraint("Horizontal", 9))
sketch3.addConstraint(Sketcher.Constraint("Horizontal", 11))
sketch3.addConstraint(Sketcher.Constraint("Vertical", 12))
sketch3.addConstraint(Sketcher.Constraint("Vertical", 14))
sketch3.addConstraint(Sketcher.Constraint("Vertical", 17))
sketch3.addConstraint(Sketcher.Constraint("Vertical", 19))
sketch3.addConstraint(Sketcher.Constraint("Horizontal", 20))
sketch3.addConstraint(Sketcher.Constraint("Horizontal", 22))
sketch3.addConstraint(Sketcher.Constraint("Horizontal", 25))
sketch3.addConstraint(Sketcher.Constraint("Horizontal", 27))
sketch3.addConstraint(Sketcher.Constraint("Vertical", 28))
sketch3.addConstraint(Sketcher.Constraint("Vertical", 30))
sketch3.addConstraint(Sketcher.Constraint("Equal", 1, 3))
sketch3.addConstraint(Sketcher.Constraint("Equal", 3, 4))
sketch3.addConstraint(Sketcher.Constraint("Equal", 4, 6))
sketch3.addConstraint(Sketcher.Constraint("Equal", 6, 8))
sketch3.addConstraint(Sketcher.Constraint("Equal", 8, 10))
sketch3.addConstraint(Sketcher.Constraint("Equal", 10, 13))
sketch3.addConstraint(Sketcher.Constraint("Equal", 13, 15))
sketch3.addConstraint(Sketcher.Constraint("Equal", 15, 16))
sketch3.addConstraint(Sketcher.Constraint("Equal", 16, 18))
sketch3.addConstraint(Sketcher.Constraint("Equal", 18, 21))
sketch3.addConstraint(Sketcher.Constraint("Equal", 21, 23))
sketch3.addConstraint(Sketcher.Constraint("Equal", 23, 24))
sketch3.addConstraint(Sketcher.Constraint("Equal", 24, 26))
sketch3.addConstraint(Sketcher.Constraint("Equal", 26, 29))
sketch3.addConstraint(Sketcher.Constraint("Equal", 29, 31))
sketch3.addConstraint(Sketcher.Constraint("Symmetric", 6, 3, 16, 3, -1, 1))
sketch3.addConstraint(Sketcher.Constraint("Symmetric", 4, 3, 18, 3, -1, 1))
sketch3.addConstraint(Sketcher.Constraint("Symmetric", 1, 3, 21, 3, -1, 1))
sketch3.addConstraint(Sketcher.Constraint("Symmetric", 3, 3, 23, 3, -1, 1))
sketch3.addConstraint(Sketcher.Constraint("Symmetric", 8, 3, 24, 3, -1, 1))
sketch3.addConstraint(Sketcher.Constraint("Symmetric", 10, 3, 26, 3, -1, 1))
sketch3.addConstraint(Sketcher.Constraint("Symmetric", 13, 3, 29, 3, -1, 1))
sketch3.addConstraint(Sketcher.Constraint("Symmetric", 15, 3, 31, 3, -1, 1))
sketch3.addConstraint(Sketcher.Constraint("Symmetric", 3, 3, 8, 3, -2))
sketch3.addConstraint(Sketcher.Constraint("Symmetric", 1, 3, 10, 3, -2))
sketch3.addConstraint(Sketcher.Constraint("Symmetric", 4, 3, 13, 3, -2))
sketch3.addConstraint(Sketcher.Constraint("Symmetric", 6, 3, 15, 3, -2))
sketch3.addConstraint(Sketcher.Constraint("Horizontal", 1, 3, 3, 3))
sketch3.addConstraint(Sketcher.Constraint("Horizontal", 10, 3, 0, 1))
sketch3.addConstraint(Sketcher.Constraint("Horizontal", 1, 1, 2, 1))
sketch3.addConstraint(Sketcher.Constraint("Horizontal", 3, 1, 8, 1))
sketch3.addConstraint(Sketcher.Constraint("Horizontal", 9, 1, 10, 1))
sketch3.addConstraint(Sketcher.Constraint("Horizontal", 26, 3, 20, 1))
sketch3.addConstraint(Sketcher.Constraint("Horizontal", 21, 1, 22, 1))
sketch3.addConstraint(Sketcher.Constraint("Horizontal", 23, 1, 24, 1))
sketch3.addConstraint(Sketcher.Constraint("Horizontal", 25, 1, 26, 1))
sketch3.addConstraint(Sketcher.Constraint("Vertical", 4, 3, 6, 3))
sketch3.addConstraint(Sketcher.Constraint("Vertical", 31, 3, 4, 1))
sketch3.addConstraint(Sketcher.Constraint("Vertical", 5, 1, 6, 1))
sketch3.addConstraint(Sketcher.Constraint("Vertical", 18, 3, 12, 1))
sketch3.addConstraint(Sketcher.Constraint("Vertical", 13, 1, 14, 1))
sketch3.addConstraint(Sketcher.Constraint("Vertical", 15, 1, 16, 1))
sketch3.addConstraint(Sketcher.Constraint("Vertical", 17, 1, 18, 1))
sketch3.addConstraint(Sketcher.Constraint("Vertical", 7, 1, 28, 1))
sketch3.addConstraint(Sketcher.Constraint("Vertical", 29, 1, 30, 1))
sketch3.addConstraint(Sketcher.Constraint("Radius", 1, Q("0.025 in")))
sketch3.addConstraint(Sketcher.Constraint("DistanceX", 1, 3, -1, 1, Q("0.6 in")))
sketch3.addConstraint(Sketcher.Constraint("DistanceY", -1, 1, 4, 3, Q("0.6 in")))
sketch3.addConstraint(Sketcher.Constraint("DistanceX", 4, 3, 13, 3, Q("1.5 in")))
sketch3.addConstraint(Sketcher.Constraint("DistanceY", 21, 3, 10, 3, Q("1.5 in")))
sketch3.addConstraint(Sketcher.Constraint("DistanceX", 3, 3, -1, 1, Q("0.31 in")))
sketch3.addConstraint(Sketcher.Constraint("DistanceY", -1, 1, 6, 3, Q("0.31 in")))
pocket2 = body.newObject("PartDesign::Pocket", "Pocket001")
pocket2.Profile = sketch3
pocket2.Type = "ThroughAll"
doc.recompute()

fillet = body.newObject("PartDesign::Fillet", "Fillet")
fillet.Base = (pocket2, edges_at(pocket2, [
    (6.858, -4.703, 0),
    (6.858, 4.703, 0),
    (-17.272, 17.272, 0),
    (-17.272, -17.272, 0),
    (17.272, -17.272, 0),
    (17.272, 17.272, 0),
    (-4.703, -6.858, 0),
    (4.703, -6.858, 0),
    (-6.858, 4.703, 0),
    (-6.858, -4.703, 0),
    (4.703, 6.858, 0),
    (-4.703, 6.858, 0),
]))
fillet.Radius = Q("0.1 in")
doc.recompute()

fillet2 = body.newObject("PartDesign::Fillet", "Fillet001")
fillet2.Base = (fillet, edges_at(fillet, [
    (14.986, 4.064, 0),
    (19.05, 4.064, 0),
    (19.05, -4.064, 0),
    (14.986, -4.064, 0),
    (4.064, -14.986, 0),
    (4.064, -19.05, 0),
    (-4.064, -19.05, 0),
    (-4.064, -14.986, 0),
    (-14.986, -4.064, 0),
    (-19.05, -4.064, 0),
    (-19.05, 4.064, 0),
    (-14.986, 4.064, 0),
    (-19.05, 19.05, 0),
    (19.05, 19.05, 0),
    (19.05, -19.05, 0),
    (-19.05, -19.05, 0),
    (-4.064, 14.986, 0),
    (-4.064, 19.05, 0),
    (4.064, 19.05, 0),
    (4.064, 14.986, 0),
]))
fillet2.Radius = Q("0.07 in")
doc.recompute()

fillet3 = body.newObject("PartDesign::Fillet", "Fillet002")
fillet3.Base = (fillet2, edges_at(fillet2, [
    (12.442, 10.287, 0),
    (16.002, 10.287, 0),
    (16.002, 7.239, 0),
    (16.002, -7.239, 0),
    (16.002, -10.287, 0),
    (12.442, -10.287, 0),
    (-7.239, -16.002, 0),
    (-10.287, -16.002, 0),
    (-10.287, -12.442, 0),
    (10.287, -12.442, 0),
    (10.287, -16.002, 0),
    (7.239, -16.002, 0),
    (-16.002, 7.239, 0),
    (-16.002, 10.287, 0),
    (-12.442, 10.287, 0),
    (-12.442, -10.287, 0),
    (-16.002, -10.287, 0),
    (-14.986, -7.239, 0),
    (-10.287, 12.442, 0),
    (-10.287, 16.002, 0),
    (-7.239, 16.002, 0),
    (7.239, 16.002, 0),
    (10.287, 16.002, 0),
    (10.287, 12.442, 0),
]))
fillet3.Radius = Q("0.015625 in")

doc.recompute()
